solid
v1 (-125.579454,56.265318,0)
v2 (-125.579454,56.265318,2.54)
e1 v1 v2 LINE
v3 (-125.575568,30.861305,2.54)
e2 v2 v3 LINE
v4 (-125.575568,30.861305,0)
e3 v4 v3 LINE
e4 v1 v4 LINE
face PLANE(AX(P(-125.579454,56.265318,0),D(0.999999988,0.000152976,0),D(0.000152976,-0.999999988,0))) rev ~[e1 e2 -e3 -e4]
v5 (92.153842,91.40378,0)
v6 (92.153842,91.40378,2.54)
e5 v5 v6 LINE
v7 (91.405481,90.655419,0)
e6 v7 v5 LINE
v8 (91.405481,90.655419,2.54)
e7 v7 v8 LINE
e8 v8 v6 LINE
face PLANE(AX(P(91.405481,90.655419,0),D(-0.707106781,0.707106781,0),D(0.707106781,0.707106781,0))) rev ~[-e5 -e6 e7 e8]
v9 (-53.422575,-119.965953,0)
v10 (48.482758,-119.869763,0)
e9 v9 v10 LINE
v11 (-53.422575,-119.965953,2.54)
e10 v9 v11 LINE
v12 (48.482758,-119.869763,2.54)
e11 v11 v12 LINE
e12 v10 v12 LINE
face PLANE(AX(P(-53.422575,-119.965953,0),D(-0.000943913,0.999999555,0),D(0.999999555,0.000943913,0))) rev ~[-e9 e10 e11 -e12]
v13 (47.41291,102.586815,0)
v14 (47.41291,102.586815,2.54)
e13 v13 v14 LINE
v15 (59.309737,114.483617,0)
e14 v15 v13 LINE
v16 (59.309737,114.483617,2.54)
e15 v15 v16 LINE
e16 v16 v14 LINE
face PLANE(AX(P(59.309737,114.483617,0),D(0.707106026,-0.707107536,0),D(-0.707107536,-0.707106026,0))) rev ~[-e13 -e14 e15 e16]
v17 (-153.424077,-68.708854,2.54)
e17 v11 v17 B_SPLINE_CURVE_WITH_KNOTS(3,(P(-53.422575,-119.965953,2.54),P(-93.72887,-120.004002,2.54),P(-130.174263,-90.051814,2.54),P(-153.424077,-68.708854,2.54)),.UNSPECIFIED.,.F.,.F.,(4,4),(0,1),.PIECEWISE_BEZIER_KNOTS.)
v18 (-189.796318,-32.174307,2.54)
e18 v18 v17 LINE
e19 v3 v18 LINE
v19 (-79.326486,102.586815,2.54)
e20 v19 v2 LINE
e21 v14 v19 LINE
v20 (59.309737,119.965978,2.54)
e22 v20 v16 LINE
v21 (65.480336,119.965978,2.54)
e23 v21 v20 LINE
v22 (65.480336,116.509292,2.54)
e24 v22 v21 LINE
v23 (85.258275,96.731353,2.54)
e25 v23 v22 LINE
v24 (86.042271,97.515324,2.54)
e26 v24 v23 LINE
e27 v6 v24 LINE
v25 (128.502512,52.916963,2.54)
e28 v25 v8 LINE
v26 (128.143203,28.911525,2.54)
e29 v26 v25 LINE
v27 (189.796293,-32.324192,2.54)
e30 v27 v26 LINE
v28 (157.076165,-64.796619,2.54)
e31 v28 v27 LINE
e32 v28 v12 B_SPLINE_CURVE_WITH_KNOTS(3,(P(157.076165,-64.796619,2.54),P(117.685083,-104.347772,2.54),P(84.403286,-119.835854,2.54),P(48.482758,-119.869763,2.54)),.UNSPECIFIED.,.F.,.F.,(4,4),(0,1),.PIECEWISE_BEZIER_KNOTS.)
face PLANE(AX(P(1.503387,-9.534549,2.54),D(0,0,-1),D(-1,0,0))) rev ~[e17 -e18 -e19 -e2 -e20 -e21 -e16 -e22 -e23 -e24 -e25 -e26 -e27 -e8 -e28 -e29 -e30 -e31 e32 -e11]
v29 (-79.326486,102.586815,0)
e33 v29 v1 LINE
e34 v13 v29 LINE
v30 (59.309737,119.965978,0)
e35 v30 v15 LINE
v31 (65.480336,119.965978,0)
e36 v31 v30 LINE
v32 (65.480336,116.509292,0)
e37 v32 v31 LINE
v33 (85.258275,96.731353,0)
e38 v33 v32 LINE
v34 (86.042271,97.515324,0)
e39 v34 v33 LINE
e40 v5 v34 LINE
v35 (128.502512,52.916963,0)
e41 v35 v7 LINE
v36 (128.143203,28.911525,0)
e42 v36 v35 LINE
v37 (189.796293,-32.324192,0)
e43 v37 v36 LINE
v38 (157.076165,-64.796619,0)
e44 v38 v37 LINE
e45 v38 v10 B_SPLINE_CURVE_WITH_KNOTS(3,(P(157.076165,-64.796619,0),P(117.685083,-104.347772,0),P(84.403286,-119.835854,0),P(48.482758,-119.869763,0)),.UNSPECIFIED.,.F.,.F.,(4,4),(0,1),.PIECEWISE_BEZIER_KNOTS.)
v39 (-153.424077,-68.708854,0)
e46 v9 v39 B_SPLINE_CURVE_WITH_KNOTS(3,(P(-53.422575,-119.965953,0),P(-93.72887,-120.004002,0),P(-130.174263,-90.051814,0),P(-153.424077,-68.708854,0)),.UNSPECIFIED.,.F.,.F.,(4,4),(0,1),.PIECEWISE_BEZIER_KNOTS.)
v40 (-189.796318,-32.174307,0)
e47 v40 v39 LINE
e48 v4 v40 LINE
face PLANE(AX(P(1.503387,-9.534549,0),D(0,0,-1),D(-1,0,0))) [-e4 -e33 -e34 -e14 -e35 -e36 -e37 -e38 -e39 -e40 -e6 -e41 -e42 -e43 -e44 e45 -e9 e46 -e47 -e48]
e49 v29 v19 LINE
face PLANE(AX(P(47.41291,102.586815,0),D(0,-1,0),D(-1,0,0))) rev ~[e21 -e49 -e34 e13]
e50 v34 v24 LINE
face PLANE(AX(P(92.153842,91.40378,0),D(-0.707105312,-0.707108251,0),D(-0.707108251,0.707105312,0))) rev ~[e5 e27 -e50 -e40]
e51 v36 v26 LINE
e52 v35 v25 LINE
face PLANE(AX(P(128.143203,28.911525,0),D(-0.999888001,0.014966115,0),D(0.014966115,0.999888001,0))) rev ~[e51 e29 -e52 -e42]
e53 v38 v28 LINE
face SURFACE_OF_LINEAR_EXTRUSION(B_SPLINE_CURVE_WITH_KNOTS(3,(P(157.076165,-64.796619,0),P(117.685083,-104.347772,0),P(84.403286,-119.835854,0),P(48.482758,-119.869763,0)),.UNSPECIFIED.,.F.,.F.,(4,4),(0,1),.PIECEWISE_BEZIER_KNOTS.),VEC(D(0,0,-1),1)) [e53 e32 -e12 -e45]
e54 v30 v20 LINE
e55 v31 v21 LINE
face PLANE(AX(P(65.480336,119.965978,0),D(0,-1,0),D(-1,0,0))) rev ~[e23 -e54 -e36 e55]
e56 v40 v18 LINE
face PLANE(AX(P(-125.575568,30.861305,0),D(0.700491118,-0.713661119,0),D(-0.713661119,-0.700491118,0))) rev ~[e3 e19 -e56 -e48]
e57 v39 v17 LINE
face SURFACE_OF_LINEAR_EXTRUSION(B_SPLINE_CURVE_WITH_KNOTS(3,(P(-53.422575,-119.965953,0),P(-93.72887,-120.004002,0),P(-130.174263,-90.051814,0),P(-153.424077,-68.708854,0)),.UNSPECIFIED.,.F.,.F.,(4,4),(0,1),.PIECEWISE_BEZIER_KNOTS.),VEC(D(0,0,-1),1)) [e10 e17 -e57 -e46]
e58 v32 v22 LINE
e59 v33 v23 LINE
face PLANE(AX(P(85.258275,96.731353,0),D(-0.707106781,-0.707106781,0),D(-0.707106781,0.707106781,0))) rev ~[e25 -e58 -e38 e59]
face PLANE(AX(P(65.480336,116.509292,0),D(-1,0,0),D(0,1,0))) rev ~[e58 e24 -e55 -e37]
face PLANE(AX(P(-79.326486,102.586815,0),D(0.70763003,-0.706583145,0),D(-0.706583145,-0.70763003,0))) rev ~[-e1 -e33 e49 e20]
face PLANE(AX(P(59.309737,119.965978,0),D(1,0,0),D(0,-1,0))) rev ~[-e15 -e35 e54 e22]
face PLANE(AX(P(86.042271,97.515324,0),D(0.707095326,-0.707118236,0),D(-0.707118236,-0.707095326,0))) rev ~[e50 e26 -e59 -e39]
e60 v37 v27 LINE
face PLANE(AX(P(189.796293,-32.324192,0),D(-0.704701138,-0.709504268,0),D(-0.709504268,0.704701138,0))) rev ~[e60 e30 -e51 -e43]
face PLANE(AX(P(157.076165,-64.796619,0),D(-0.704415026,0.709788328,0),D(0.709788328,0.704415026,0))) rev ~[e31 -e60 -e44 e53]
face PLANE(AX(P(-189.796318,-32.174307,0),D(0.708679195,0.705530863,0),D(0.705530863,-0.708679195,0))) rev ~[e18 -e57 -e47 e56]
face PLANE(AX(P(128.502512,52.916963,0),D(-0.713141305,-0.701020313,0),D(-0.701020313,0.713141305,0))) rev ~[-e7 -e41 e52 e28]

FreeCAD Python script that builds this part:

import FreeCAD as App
import Part
import Sketcher

V = App.Vector
Q = App.Units.Quantity

doc = App.newDocument("Part")
params = doc.addObject("Spreadsheet::Sheet", "Params")
for row, (alias, value) in enumerate([
    ("pad1_length", "0.1 in"),
], start=1):
    params.set(f"A{row}", alias)
    params.set(f"B{row}", "=" + value)
    params.setAlias(f"B{row}", alias)

body = doc.addObject("PartDesign::Body", "Body")

# Sketch on XY plane
sketch1 = doc.addObject("Sketcher::SketchObject", "Sketch")
body.addObject(sketch1)
sketch1.AttachmentSupport = (doc.XY_Plane, [""])
sketch1.MapMode = "FlatFace"
sketch1.addGeometry([
    Part.BSplineCurve([V(157.076165, -64.796619, 0), V(117.685083, -104.347772, 0), V(84.403286, -119.835854, 0), V(48.482758, -119.869763, 0)], [4, 4], [0, 1], False, 3, [1, 1, 1, 1], False),  # 0
    Part.LineSegment(V(157.076165, -64.796619, 0), V(189.796293, -32.324192, 0)),  # 1
    Part.LineSegment(V(189.796293, -32.324192, 0), V(128.143203, 28.911525, 0)),  # 2
    Part.LineSegment(V(128.143203, 28.911525, 0), V(128.502512, 52.916963, 0)),  # 3
    Part.LineSegment(V(128.502512, 52.916963, 0), V(91.405481, 90.655419, 0)),  # 4
    Part.LineSegment(V(91.405481, 90.655419, 0), V(92.153842, 91.40378, 0)),  # 5
    Part.LineSegment(V(92.153842, 91.40378, 0), V(86.042271, 97.515324, 0)),  # 6
    Part.LineSegment(V(86.042271, 97.515324, 0), V(85.258275, 96.731353, 0)),  # 7
    Part.LineSegment(V(85.258275, 96.731353, 0), V(65.480336, 116.509292, 0)),  # 8
    Part.LineSegment(V(65.480336, 116.509292, 0), V(65.480336, 119.965978, 0)),  # 9
    Part.LineSegment(V(65.480336, 119.965978, 0), V(59.309737, 119.965978, 0)),  # 10
    Part.LineSegment(V(59.309737, 119.965978, 0), V(59.309737, 114.483617, 0)),  # 11
    Part.LineSegment(V(59.309737, 114.483617, 0), V(47.41291, 102.586815, 0)),  # 12
    Part.LineSegment(V(47.41291, 102.586815, 0), V(-79.326486, 102.586815, 0)),  # 13
    Part.LineSegment(V(-79.326486, 102.586815, 0), V(-125.579454, 56.265318, 0)),  # 14
    Part.LineSegment(V(-125.579454, 56.265318, 0), V(-125.575568, 30.861305, 0)),  # 15
    Part.LineSegment(V(-125.575568, 30.861305, 0), V(-189.796318, -32.174307, 0)),  # 16
    Part.LineSegment(V(-189.796318, -32.174307, 0), V(-153.424077, -68.708854, 0)),  # 17
    Part.BSplineCurve([V(-53.422575, -119.965953, 0), V(-93.72887, -120.004002, 0), V(-130.174263, -90.051814, 0), V(-153.424077, -68.708854, 0)], [4, 4], [0, 1], False, 3, [1, 1, 1, 1], False),  # 18
    Part.LineSegment(V(-53.422575, -119.965953, 0), V(48.482758, -119.869763, 0)),  # 19
], False)
sketch1.addConstraint([
    Sketcher.Constraint("Block", 0),
    Sketcher.Constraint("Block", 18),
    Sketcher.Constraint("Coincident", 0, 1, 1, 1),
    Sketcher.Constraint("Coincident", 1, 2, 2, 1),
    Sketcher.Constraint("Coincident", 2, 2, 3, 1),
    Sketcher.Constraint("Coincident", 3, 2, 4, 1),
    Sketcher.Constraint("Coincident", 4, 2, 5, 1),
    Sketcher.Constraint("Coincident", 5, 2, 6, 1),
    Sketcher.Constraint("Coincident", 6, 2, 7, 1),
    Sketcher.Constraint("Coincident", 7, 2, 8, 1),
    Sketcher.Constraint("Coincident", 8, 2, 9, 1),
    Sketcher.Constraint("Coincident", 9, 2, 10, 1),
    Sketcher.Constraint("Coincident", 10, 2, 11, 1),
    Sketcher.Constraint("Coincident", 11, 2, 12, 1),
    Sketcher.Constraint("Coincident", 12, 2, 13, 1),
    Sketcher.Constraint("Coincident", 13, 2, 14, 1),
    Sketcher.Constraint("Coincident", 14, 2, 15, 1),
    Sketcher.Constraint("Coincident", 15, 2, 16, 1),
    Sketcher.Constraint("Coincident", 16, 2, 17, 1),
    Sketcher.Constraint("Coincident", 17, 2, 18, 2),
    Sketcher.Constraint("Coincident", 18, 1, 19, 1),
    Sketcher.Constraint("Coincident", 19, 2, 0, 2),
    Sketcher.Constraint("Vertical", 9),
    Sketcher.Constraint("Horizontal", 10),
    Sketcher.Constraint("Vertical", 11),
    Sketcher.Constraint("Horizontal", 13),
    Sketcher.Constraint("DistanceX", 10, 2, 10, 1, 6.1706),
    Sketcher.Constraint("DistanceY", 14, 2, 10, 2, Q("2.5079 in")),
    Sketcher.Constraint("DistanceY", 11, 2, 11, 1, 5.482361),
    Sketcher.Constraint("DistanceY", 2, 2, 6, 2, 68.6038),
    Sketcher.Constraint("DistanceY", 5, 2, 9, 2, 28.562198),
    Sketcher.Constraint("DistanceY", 12, 2, 11, 2, 11.896801),
    Sketcher.Constraint("Distance", 1, 46.09843),
    Sketcher.Constraint("Distance", 2, 86.89601),
    Sketcher.Constraint("Distance", 5, 1.058341),
    Sketcher.Constraint("Distance", 7, 1.10872),
    Sketcher.Constraint("Distance", 8, 27.970229),
    Sketcher.Constraint("Distance", 14, 65.46005),
    Sketcher.Constraint("Distance", 16, 89.987739),
    Sketcher.Constraint("DistanceX", 13, 2, 13, 1, 126.739396),
    Sketcher.Constraint("DistanceY", 9, 1, 9, 2, 3.456686),
    Sketcher.Constraint("DistanceX", -1, 1, 3, 2, 128.502512),
    Sketcher.Constraint("DistanceX", -1, 1, 4, 2, 91.405481),
    Sketcher.Constraint("DistanceY", -1, 1, 4, 2, 90.655419),
    Sketcher.Constraint("DistanceX", -1, 1, 5, 2, 92.153842),
    Sketcher.Constraint("DistanceX", -1, 1, 6, 2, 86.042271),
    Sketcher.Constraint("DistanceX", -1, 1, 12, 2, 47.41291),
    Sketcher.Constraint("DistanceX", 15, 2, -1, 1, 125.575568),
    Sketcher.Constraint("DistanceX", 16, 2, -1, 1, 189.796318),
    Sketcher.Constraint("DistanceX", 2, 2, 1, 2, 61.65309),
    Sketcher.Constraint("DistanceX", 2, 2, 3, 2, 0.359308),
    Sketcher.Constraint("DistanceY", 2, 2, 3, 2, 24.005438),
    Sketcher.Constraint("DistanceY", 7, 2, 6, 2, 0.783971),
    Sketcher.Constraint("DistanceY", 15, 2, 13, 2, 71.725511),
])
pad1 = doc.addObject("PartDesign::Pad", "Pad")
body.addObject(pad1)
pad1.Profile = sketch1
pad1.setExpression("Length", "Params.pad1_length")

doc.recompute()
